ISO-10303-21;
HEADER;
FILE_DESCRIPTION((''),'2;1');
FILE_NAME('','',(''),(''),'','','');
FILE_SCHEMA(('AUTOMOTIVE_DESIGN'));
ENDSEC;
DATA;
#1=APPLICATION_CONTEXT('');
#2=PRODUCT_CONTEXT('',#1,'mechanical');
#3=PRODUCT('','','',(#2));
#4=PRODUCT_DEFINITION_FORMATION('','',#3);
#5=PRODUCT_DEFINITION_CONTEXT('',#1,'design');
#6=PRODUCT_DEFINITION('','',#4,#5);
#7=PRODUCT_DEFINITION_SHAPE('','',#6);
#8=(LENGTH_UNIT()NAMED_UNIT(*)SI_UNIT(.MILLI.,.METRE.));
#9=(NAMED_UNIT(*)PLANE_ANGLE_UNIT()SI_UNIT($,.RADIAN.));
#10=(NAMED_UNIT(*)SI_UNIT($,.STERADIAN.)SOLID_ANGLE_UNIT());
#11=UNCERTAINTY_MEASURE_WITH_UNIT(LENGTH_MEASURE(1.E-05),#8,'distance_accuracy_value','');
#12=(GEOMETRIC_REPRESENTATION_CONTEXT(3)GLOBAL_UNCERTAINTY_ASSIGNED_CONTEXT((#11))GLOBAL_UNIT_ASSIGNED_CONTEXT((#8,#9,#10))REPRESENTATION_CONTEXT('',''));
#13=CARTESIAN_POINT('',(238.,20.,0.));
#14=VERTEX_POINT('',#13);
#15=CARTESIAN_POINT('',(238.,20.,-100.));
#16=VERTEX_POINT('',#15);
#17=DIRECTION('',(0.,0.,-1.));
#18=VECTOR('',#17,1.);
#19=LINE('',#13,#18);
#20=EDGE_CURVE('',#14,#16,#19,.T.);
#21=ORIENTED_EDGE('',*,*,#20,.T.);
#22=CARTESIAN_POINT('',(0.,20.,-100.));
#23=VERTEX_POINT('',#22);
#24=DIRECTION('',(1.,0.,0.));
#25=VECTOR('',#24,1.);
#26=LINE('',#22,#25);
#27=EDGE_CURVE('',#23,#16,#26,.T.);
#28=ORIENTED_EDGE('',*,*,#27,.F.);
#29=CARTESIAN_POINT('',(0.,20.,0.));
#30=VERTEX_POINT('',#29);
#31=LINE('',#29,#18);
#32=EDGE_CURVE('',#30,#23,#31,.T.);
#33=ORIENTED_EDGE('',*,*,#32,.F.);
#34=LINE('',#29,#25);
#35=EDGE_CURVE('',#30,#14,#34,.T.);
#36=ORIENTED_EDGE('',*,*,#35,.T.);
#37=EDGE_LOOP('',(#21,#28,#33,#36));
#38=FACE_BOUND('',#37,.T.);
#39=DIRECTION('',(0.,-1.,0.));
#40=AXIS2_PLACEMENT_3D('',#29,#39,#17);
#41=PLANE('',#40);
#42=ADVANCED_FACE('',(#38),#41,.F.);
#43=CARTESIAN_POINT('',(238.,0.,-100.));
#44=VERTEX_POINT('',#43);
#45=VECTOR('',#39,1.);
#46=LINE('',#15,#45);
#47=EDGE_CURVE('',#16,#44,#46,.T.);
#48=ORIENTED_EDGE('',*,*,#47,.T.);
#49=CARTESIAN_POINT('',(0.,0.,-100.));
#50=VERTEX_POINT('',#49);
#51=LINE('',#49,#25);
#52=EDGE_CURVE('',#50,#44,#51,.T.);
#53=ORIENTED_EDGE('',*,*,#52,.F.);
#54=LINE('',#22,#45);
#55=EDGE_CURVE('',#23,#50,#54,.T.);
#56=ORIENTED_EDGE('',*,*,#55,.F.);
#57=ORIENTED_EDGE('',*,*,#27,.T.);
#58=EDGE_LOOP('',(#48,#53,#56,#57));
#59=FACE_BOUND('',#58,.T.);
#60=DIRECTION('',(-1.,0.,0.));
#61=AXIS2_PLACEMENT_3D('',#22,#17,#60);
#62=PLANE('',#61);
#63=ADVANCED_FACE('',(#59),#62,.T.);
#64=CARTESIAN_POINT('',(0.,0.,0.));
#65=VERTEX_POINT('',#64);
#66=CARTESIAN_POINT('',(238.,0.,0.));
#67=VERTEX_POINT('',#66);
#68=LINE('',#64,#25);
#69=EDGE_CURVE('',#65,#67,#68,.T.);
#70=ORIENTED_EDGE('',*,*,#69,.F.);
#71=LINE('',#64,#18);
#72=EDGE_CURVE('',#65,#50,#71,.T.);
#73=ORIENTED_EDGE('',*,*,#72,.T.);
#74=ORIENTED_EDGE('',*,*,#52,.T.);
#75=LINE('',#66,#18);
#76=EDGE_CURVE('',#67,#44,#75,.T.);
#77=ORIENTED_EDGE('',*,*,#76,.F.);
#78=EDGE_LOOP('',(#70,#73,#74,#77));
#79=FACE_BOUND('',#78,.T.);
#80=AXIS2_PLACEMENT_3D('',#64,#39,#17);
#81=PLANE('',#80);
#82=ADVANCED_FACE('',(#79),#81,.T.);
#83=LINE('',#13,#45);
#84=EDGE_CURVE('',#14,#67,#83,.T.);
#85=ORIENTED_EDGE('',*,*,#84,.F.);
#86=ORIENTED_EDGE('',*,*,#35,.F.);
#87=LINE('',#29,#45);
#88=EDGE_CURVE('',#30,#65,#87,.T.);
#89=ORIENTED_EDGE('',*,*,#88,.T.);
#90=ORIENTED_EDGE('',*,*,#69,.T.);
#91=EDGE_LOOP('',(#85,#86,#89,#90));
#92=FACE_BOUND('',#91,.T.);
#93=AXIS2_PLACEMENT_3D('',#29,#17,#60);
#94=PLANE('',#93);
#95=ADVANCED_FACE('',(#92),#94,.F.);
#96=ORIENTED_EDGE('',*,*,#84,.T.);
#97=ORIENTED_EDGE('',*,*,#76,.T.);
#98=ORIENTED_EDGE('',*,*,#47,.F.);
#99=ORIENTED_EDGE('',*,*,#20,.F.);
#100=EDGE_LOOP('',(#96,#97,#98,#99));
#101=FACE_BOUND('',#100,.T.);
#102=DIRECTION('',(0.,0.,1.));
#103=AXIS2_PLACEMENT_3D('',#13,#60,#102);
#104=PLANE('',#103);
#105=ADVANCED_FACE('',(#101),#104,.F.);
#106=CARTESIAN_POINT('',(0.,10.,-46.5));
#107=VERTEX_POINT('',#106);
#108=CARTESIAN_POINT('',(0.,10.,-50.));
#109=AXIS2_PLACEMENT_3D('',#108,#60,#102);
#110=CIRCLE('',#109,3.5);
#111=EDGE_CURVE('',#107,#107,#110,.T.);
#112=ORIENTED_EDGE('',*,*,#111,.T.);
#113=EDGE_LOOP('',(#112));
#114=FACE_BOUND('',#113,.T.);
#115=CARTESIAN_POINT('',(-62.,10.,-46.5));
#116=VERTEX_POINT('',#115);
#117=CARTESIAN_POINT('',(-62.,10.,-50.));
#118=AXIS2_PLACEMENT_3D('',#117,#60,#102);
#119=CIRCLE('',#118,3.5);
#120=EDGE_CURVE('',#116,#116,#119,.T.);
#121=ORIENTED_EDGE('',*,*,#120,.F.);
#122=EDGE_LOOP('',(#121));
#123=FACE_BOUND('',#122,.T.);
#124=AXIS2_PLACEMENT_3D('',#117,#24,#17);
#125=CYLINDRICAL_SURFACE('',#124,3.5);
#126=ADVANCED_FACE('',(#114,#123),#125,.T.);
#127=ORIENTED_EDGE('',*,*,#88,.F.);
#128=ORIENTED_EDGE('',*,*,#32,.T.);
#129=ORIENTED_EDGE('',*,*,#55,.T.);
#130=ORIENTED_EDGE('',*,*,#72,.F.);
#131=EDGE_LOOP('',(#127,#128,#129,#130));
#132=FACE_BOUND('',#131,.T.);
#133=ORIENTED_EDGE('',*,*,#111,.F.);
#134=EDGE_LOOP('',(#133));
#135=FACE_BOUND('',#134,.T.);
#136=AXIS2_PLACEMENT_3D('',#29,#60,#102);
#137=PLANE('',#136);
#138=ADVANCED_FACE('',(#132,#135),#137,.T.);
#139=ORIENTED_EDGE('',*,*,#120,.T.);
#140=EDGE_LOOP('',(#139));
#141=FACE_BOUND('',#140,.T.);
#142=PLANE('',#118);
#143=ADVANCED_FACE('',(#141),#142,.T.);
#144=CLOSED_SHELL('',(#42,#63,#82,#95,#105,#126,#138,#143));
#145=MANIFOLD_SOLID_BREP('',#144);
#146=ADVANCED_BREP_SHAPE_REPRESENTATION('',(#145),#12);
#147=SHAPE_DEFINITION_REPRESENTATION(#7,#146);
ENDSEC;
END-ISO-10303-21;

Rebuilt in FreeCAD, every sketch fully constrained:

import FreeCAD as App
import Part
import Sketcher

doc = App.newDocument("Part")
body = doc.addObject("PartDesign::Body", "Body")

sketch1 = body.newObject("Sketcher::SketchObject", "Sketch")
sketch1.AttachmentSupport = (doc.getObject("XZ_Plane"), [""])
sketch1.MapMode = "FlatFace"
sketch1.addGeometry(Part.LineSegment(App.Vector(0, -100, 0), App.Vector(0, 0, 0)), False)
sketch1.addGeometry(Part.LineSegment(App.Vector(0, 0, 0), App.Vector(238, 0, 0)), False)
sketch1.addGeometry(Part.LineSegment(App.Vector(238, 0, 0), App.Vector(238, -100, 0)), False)
sketch1.addGeometry(Part.LineSegment(App.Vector(238, -100, 0), App.Vector(0, -100, 0)), False)
sketch1.addConstraint(Sketcher.Constraint("Coincident", 0, 2, 1, 1))
sketch1.addConstraint(Sketcher.Constraint("Coincident", 1, 2, 2, 1))
sketch1.addConstraint(Sketcher.Constraint("Coincident", 2, 2, 3, 1))
sketch1.addConstraint(Sketcher.Constraint("Coincident", 3, 2, 0, 1))
sketch1.addConstraint(Sketcher.Constraint("Vertical", 0))
sketch1.addConstraint(Sketcher.Constraint("Horizontal", 1))
sketch1.addConstraint(Sketcher.Constraint("Vertical", 2))
sketch1.addConstraint(Sketcher.Constraint("Horizontal", 3))
sketch1.addConstraint(Sketcher.Constraint("Coincident", 0, 2, -1, 1))
sketch1.addConstraint(Sketcher.Constraint("DistanceX", 1, 1, 1, 2, 238.0))
sketch1.addConstraint(Sketcher.Constraint("DistanceY", 0, 1, 0, 2, 100.0))
pad1 = body.newObject("PartDesign::Pad", "Pad")
pad1.Profile = sketch1
pad1.Length = 20
pad1.Reversed = True

sketch2 = body.newObject("Sketcher::SketchObject", "Sketch001")
sketch2.AttachmentSupport = (doc.getObject("YZ_Plane"), [""])
sketch2.MapMode = "FlatFace"
sketch2.addGeometry(Part.Circle(App.Vector(10, -50, 0), App.Vector(0, 0, 1), 3.5), False)
sketch2.addConstraint(Sketcher.Constraint("Diameter", 0, 7.0))
sketch2.addConstraint(Sketcher.Constraint("DistanceX", -1, 1, 0, 3, 10.0))
sketch2.addConstraint(Sketcher.Constraint("DistanceY", 0, 3, -1, 1, 50.0))
pad2 = body.newObject("PartDesign::Pad", "Pad001")
pad2.Profile = sketch2
pad2.Length = 62
pad2.Reversed = True

doc.recompute()
